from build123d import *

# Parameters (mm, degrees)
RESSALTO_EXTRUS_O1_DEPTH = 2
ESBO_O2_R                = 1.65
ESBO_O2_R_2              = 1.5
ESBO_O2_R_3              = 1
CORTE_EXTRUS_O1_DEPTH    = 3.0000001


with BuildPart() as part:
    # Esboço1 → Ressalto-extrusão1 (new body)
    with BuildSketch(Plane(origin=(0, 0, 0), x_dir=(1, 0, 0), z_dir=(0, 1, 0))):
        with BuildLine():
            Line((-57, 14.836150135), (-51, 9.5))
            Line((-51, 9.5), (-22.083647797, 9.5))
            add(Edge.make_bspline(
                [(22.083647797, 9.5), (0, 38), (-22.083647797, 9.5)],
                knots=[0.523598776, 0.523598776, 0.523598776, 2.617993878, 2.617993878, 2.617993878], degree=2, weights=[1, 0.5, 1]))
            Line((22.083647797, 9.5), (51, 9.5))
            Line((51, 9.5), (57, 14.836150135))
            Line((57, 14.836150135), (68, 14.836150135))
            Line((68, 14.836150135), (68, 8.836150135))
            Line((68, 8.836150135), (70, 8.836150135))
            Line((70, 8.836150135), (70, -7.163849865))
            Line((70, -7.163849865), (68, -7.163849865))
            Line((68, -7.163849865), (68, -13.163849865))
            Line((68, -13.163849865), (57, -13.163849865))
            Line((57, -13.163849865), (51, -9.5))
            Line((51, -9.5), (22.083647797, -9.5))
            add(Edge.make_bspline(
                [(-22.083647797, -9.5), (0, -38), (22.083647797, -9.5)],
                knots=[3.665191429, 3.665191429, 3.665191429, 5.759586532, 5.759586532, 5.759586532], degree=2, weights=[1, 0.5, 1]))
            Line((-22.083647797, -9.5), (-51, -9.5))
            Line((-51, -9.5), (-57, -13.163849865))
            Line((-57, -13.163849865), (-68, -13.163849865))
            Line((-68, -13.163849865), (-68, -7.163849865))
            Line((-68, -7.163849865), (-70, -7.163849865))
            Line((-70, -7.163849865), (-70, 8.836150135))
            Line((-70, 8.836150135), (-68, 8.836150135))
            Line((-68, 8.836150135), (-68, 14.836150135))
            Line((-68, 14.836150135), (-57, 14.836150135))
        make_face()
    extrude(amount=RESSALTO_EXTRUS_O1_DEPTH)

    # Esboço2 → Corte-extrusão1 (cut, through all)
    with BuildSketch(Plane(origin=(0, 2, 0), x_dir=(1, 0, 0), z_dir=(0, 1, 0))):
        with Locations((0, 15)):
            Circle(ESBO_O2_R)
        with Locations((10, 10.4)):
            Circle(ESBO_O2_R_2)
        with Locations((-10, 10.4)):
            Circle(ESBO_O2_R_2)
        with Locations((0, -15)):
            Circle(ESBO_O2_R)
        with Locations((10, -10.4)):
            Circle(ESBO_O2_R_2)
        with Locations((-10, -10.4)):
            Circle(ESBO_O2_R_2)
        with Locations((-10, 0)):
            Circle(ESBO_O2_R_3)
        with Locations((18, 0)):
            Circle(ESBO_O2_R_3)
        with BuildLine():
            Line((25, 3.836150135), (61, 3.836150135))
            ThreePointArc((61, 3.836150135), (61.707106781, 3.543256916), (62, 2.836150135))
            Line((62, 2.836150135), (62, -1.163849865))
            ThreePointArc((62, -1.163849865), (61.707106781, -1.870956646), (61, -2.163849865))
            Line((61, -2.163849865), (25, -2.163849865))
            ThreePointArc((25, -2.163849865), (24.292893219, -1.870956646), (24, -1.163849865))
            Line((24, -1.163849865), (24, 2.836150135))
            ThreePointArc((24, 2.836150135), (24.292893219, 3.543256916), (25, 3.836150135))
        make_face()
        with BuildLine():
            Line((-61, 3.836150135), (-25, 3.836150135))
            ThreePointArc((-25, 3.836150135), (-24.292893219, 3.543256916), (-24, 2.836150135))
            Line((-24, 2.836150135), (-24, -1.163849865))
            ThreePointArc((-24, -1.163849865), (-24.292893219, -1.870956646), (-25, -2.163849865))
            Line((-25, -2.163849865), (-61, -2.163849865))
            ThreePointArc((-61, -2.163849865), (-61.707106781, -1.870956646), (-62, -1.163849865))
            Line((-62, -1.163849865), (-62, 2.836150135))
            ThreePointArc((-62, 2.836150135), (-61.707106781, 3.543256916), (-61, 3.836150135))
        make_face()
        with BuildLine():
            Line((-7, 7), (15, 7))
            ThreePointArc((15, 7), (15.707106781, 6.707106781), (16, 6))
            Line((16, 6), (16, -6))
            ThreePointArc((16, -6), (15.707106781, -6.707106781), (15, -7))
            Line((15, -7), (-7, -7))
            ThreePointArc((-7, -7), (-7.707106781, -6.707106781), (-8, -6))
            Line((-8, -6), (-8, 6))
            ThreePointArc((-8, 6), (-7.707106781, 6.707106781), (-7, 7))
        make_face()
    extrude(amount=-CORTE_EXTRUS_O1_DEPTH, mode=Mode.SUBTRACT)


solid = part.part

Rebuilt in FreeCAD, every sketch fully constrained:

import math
import FreeCAD as App
import Part
import Sketcher

V = App.Vector
Q = App.Units.Quantity

doc = App.newDocument("Part")
body = doc.addObject("PartDesign::Body", "Body")

sketch1 = body.newObject("Sketcher::SketchObject", "Sketch")
sketch1.AttachmentSupport = (doc.getObject("XZ_Plane"), [""])
sketch1.MapMode = "FlatFace"
sketch1.addGeometry([
    Part.LineSegment(V(-51, -9.5, 0), V(-57, -14.83615, 0)),
    Part.LineSegment(V(-57, -14.83615, 0), V(-68, -14.83615, 0)),
    Part.LineSegment(V(-68, -14.83615, 0), V(-68, -8.83615, 0)),
    Part.LineSegment(V(-68, -8.83615, 0), V(-70, -8.83615, 0)),
    Part.LineSegment(V(-70, -8.83615, 0), V(-70, 7.16385, 0)),
    Part.LineSegment(V(-70, 7.16385, 0), V(-68, 7.16385, 0)),
    Part.LineSegment(V(-68, 7.16385, 0), V(-68, 13.16385, 0)),
    Part.LineSegment(V(-68, 13.16385, 0), V(-57, 13.16385, 0)),
    Part.LineSegment(V(-57, 13.16385, 0), V(-51, 9.5, 0)),
    Part.LineSegment(V(-51, 9.5, 0), V(-22.083648, 9.5, 0)),
    Part.BSplineCurve([V(-22.083648, 9.5, 0), V(0, 38, 0), V(22.083648, 9.5, 0)], [3, 3], [3.665191429, 5.759586532], False, 2, [1, 0.5, 1], False),
    Part.LineSegment(V(22.083648, 9.5, 0), V(51, 9.5, 0)),
    Part.LineSegment(V(51, 9.5, 0), V(57, 13.16385, 0)),
    Part.LineSegment(V(57, 13.16385, 0), V(68, 13.16385, 0)),
    Part.LineSegment(V(68, 13.16385, 0), V(68, 7.16385, 0)),
    Part.LineSegment(V(68, 7.16385, 0), V(70, 7.16385, 0)),
    Part.LineSegment(V(70, 7.16385, 0), V(70, -8.83615, 0)),
    Part.LineSegment(V(70, -8.83615, 0), V(68, -8.83615, 0)),
    Part.LineSegment(V(68, -8.83615, 0), V(68, -14.83615, 0)),
    Part.LineSegment(V(68, -14.83615, 0), V(57, -14.83615, 0)),
    Part.LineSegment(V(57, -14.83615, 0), V(51, -9.5, 0)),
    Part.LineSegment(V(51, -9.5, 0), V(22.083648, -9.5, 0)),
    Part.BSplineCurve([V(22.083648, -9.5, 0), V(0, -38, 0), V(-22.083648, -9.5, 0)], [3, 3], [0.523598776, 2.617993878], False, 2, [1, 0.5, 1], False),
    Part.LineSegment(V(-22.083648, -9.5, 0), V(-51, -9.5, 0)),
], False)
sketch1.addConstraint([
    Sketcher.Constraint("Block", 10),
    Sketcher.Constraint("Block", 22),
    Sketcher.Constraint("Coincident", 0, 2, 1, 1),
    Sketcher.Constraint("Coincident", 1, 2, 2, 1),
    Sketcher.Constraint("Coincident", 2, 2, 3, 1),
    Sketcher.Constraint("Coincident", 3, 2, 4, 1),
    Sketcher.Constraint("Coincident", 4, 2, 5, 1),
    Sketcher.Constraint("Coincident", 5, 2, 6, 1),
    Sketcher.Constraint("Coincident", 6, 2, 7, 1),
    Sketcher.Constraint("Coincident", 7, 2, 8, 1),
    Sketcher.Constraint("Coincident", 8, 2, 9, 1),
    Sketcher.Constraint("Coincident", 9, 2, 10, 1),
    Sketcher.Constraint("Coincident", 10, 2, 11, 1),
    Sketcher.Constraint("Coincident", 11, 2, 12, 1),
    Sketcher.Constraint("Coincident", 12, 2, 13, 1),
    Sketcher.Constraint("Coincident", 13, 2, 14, 1),
    Sketcher.Constraint("Coincident", 14, 2, 15, 1),
    Sketcher.Constraint("Coincident", 15, 2, 16, 1),
    Sketcher.Constraint("Coincident", 16, 2, 17, 1),
    Sketcher.Constraint("Coincident", 17, 2, 18, 1),
    Sketcher.Constraint("Coincident", 18, 2, 19, 1),
    Sketcher.Constraint("Coincident", 19, 2, 20, 1),
    Sketcher.Constraint("Coincident", 20, 2, 21, 1),
    Sketcher.Constraint("Coincident", 21, 2, 22, 1),
    Sketcher.Constraint("Coincident", 22, 2, 23, 1),
    Sketcher.Constraint("Coincident", 23, 2, 0, 1),
    Sketcher.Constraint("Horizontal", 1),
    Sketcher.Constraint("Vertical", 2),
    Sketcher.Constraint("Horizontal", 3),
    Sketcher.Constraint("Vertical", 4),
    Sketcher.Constraint("Horizontal", 5),
    Sketcher.Constraint("Vertical", 6),
    Sketcher.Constraint("Horizontal", 7),
    Sketcher.Constraint("Horizontal", 9),
    Sketcher.Constraint("Horizontal", 11),
    Sketcher.Constraint("Horizontal", 13),
    Sketcher.Constraint("Vertical", 14),
    Sketcher.Constraint("Horizontal", 15),
    Sketcher.Constraint("Vertical", 16),
    Sketcher.Constraint("Horizontal", 17),
    Sketcher.Constraint("Vertical", 18),
    Sketcher.Constraint("Horizontal", 19),
    Sketcher.Constraint("Horizontal", 21),
    Sketcher.Constraint("Horizontal", 23),
    Sketcher.Constraint("Symmetric", 7, 2, 12, 2, -2),
    Sketcher.Constraint("Symmetric", 5, 2, 14, 2, -2),
    Sketcher.Constraint("Symmetric", 3, 2, 16, 2, -2),
    Sketcher.Constraint("Symmetric", 1, 2, 18, 2, -2),
    Sketcher.Constraint("Vertical", 2, 2, 5, 2),
    Sketcher.Constraint("Vertical", 0, 2, 7, 2),
    Sketcher.Constraint("Vertical", 12, 2, 19, 2),
    Sketcher.Constraint("Vertical", 11, 2, 20, 2),
    Sketcher.Constraint("Vertical", 8, 2, 23, 2),
    Sketcher.Constraint("Equal", 9, 11),
    Sketcher.Constraint("Equal", 2, 6),
    Sketcher.Constraint("DistanceX", 1, 2, 1, 1, Q("11 mm")),
    Sketcher.Constraint("DistanceX", 3, 2, 3, 1, Q("2 mm")),
    Sketcher.Constraint("DistanceY", 2, 1, 2, 2, Q("6 mm")),
    Sketcher.Constraint("DistanceY", 4, 1, 4, 2, Q("16 mm")),
    Sketcher.Constraint("DistanceX", 0, 2, -1, 1, Q("57 mm")),
    Sketcher.Constraint("DistanceX", 8, 2, -1, 1, Q("51 mm")),
    Sketcher.Constraint("Distance", 0, Q("8.029601 mm")),
])
pad1 = body.newObject("PartDesign::Pad", "Pad")
pad1.Profile = sketch1
pad1.Length = 2
pad1.Reversed = True

sketch2 = body.newObject("Sketcher::SketchObject", "Sketch001")
sketch2.AttachmentSupport = (doc.getObject("XZ_Plane"), [""])
sketch2.MapMode = "FlatFace"
sketch2.AttachmentOffset = App.Placement(V(0, 0, -2), App.Rotation())
sketch2.addGeometry([
    Part.Circle(V(0, -15, 0), V(0, 0, 1), 1.6),
    Part.Circle(V(10, -10.4, 0), V(0, 0, 1), 1.5),
    Part.Circle(V(-10, -10.4, 0), V(0, 0, 1), 1.5),
    Part.Circle(V(0, 15, 0), V(0, 0, 1), 1.6),
    Part.Circle(V(10, 10.4, 0), V(0, 0, 1), 1.5),
    Part.Circle(V(-10, 10.4, 0), V(0, 0, 1), 1.5),
    Part.Circle(V(-10, 0, 0), V(0, 0, 1), 1),
    Part.Circle(V(18, 0, 0), V(0, 0, 1), 1),
    Part.LineSegment(V(61, -3.8, 0), V(25, -3.8, 0)),
    Part.ArcOfCircle(Part.Circle(V(25, -2.8, 0), V(0, 0, 1), 1), math.radians(-180), math.radians(-90)),
    Part.LineSegment(V(24, -2.8, 0), V(24, 1.2, 0)),
    Part.ArcOfCircle(Part.Circle(V(25, 1.2, 0), V(0, 0, 1), 1), math.radians(90), math.radians(180)),
    Part.LineSegment(V(25, 2.2, 0), V(61, 2.2, 0)),
    Part.ArcOfCircle(Part.Circle(V(61, 1.2, 0), V(0, 0, 1), 1), math.radians(0), math.radians(90)),
    Part.LineSegment(V(62, 1.2, 0), V(62, -2.8, 0)),
    Part.ArcOfCircle(Part.Circle(V(61, -2.8, 0), V(0, 0, 1), 1), math.radians(-90), math.radians(0)),
    Part.LineSegment(V(-25, -3.8, 0), V(-61, -3.8, 0)),
    Part.ArcOfCircle(Part.Circle(V(-61, -2.8, 0), V(0, 0, 1), 1), math.radians(-180), math.radians(-90)),
    Part.LineSegment(V(-62, -2.8, 0), V(-62, 1.2, 0)),
    Part.ArcOfCircle(Part.Circle(V(-61, 1.2, 0), V(0, 0, 1), 1), math.radians(90), math.radians(180)),
    Part.LineSegment(V(-61, 2.2, 0), V(-25, 2.2, 0)),
    Part.ArcOfCircle(Part.Circle(V(-25, 1.2, 0), V(0, 0, 1), 1), math.radians(0), math.radians(90)),
    Part.LineSegment(V(-24, 1.2, 0), V(-24, -2.8, 0)),
    Part.ArcOfCircle(Part.Circle(V(-25, -2.8, 0), V(0, 0, 1), 1), math.radians(-90), math.radians(0)),
    Part.LineSegment(V(15, -7, 0), V(-7, -7, 0)),
    Part.ArcOfCircle(Part.Circle(V(-7, -6, 0), V(0, 0, 1), 1), math.radians(-180), math.radians(-90)),
    Part.LineSegment(V(-8, -6, 0), V(-8, 6, 0)),
    Part.ArcOfCircle(Part.Circle(V(-7, 6, 0), V(0, 0, 1), 1), math.radians(90), math.radians(180)),
    Part.LineSegment(V(-7, 7, 0), V(15, 7, 0)),
    Part.ArcOfCircle(Part.Circle(V(15, 6, 0), V(0, 0, 1), 1), math.radians(0), math.radians(90)),
    Part.LineSegment(V(16, 6, 0), V(16, -6, 0)),
    Part.ArcOfCircle(Part.Circle(V(15, -6, 0), V(0, 0, 1), 1), math.radians(-90), math.radians(0)),
], False)
sketch2.addConstraint([
    Sketcher.Constraint("Tangent", 8, 2, 9, 2),
    Sketcher.Constraint("Tangent", 9, 1, 10, 1),
    Sketcher.Constraint("Tangent", 10, 2, 11, 2),
    Sketcher.Constraint("Tangent", 11, 1, 12, 1),
    Sketcher.Constraint("Tangent", 12, 2, 13, 2),
    Sketcher.Constraint("Tangent", 13, 1, 14, 1),
    Sketcher.Constraint("Tangent", 14, 2, 15, 2),
    Sketcher.Constraint("Tangent", 15, 1, 8, 1),
    Sketcher.Constraint("Tangent", 16, 2, 17, 2),
    Sketcher.Constraint("Tangent", 17, 1, 18, 1),
    Sketcher.Constraint("Tangent", 18, 2, 19, 2),
    Sketcher.Constraint("Tangent", 19, 1, 20, 1),
    Sketcher.Constraint("Tangent", 20, 2, 21, 2),
    Sketcher.Constraint("Tangent", 21, 1, 22, 1),
    Sketcher.Constraint("Tangent", 22, 2, 23, 2),
    Sketcher.Constraint("Tangent", 23, 1, 16, 1),
    Sketcher.Constraint("Tangent", 24, 2, 25, 2),
    Sketcher.Constraint("Tangent", 25, 1, 26, 1),
    Sketcher.Constraint("Tangent", 26, 2, 27, 2),
    Sketcher.Constraint("Tangent", 27, 1, 28, 1),
    Sketcher.Constraint("Tangent", 28, 2, 29, 2),
    Sketcher.Constraint("Tangent", 29, 1, 30, 1),
    Sketcher.Constraint("Tangent", 30, 2, 31, 2),
    Sketcher.Constraint("Tangent", 31, 1, 24, 1),
    Sketcher.Constraint("Horizontal", 8),
    Sketcher.Constraint("Vertical", 10),
    Sketcher.Constraint("Horizontal", 12),
    Sketcher.Constraint("Vertical", 14),
    Sketcher.Constraint("Horizontal", 16),
    Sketcher.Constraint("Vertical", 18),
    Sketcher.Constraint("Horizontal", 20),
    Sketcher.Constraint("Vertical", 22),
    Sketcher.Constraint("Horizontal", 24),
    Sketcher.Constraint("Vertical", 26),
    Sketcher.Constraint("Horizontal", 28),
    Sketcher.Constraint("Vertical", 30),
    Sketcher.Constraint("Equal", 1, 2),
    Sketcher.Constraint("Equal", 0, 3),
    Sketcher.Constraint("Equal", 2, 4),
    Sketcher.Constraint("Equal", 4, 5),
    Sketcher.Constraint("Equal", 6, 7),
    Sketcher.Constraint("Equal", 7, 9),
    Sketcher.Constraint("Equal", 9, 11),
    Sketcher.Constraint("Equal", 11, 13),
    Sketcher.Constraint("Equal", 13, 15),
    Sketcher.Constraint("Equal", 15, 17),
    Sketcher.Constraint("Equal", 17, 19),
    Sketcher.Constraint("Equal", 19, 21),
    Sketcher.Constraint("Equal", 21, 23),
    Sketcher.Constraint("Equal", 23, 25),
    Sketcher.Constraint("Equal", 25, 27),
    Sketcher.Constraint("Equal", 27, 29),
    Sketcher.Constraint("Equal", 29, 31),
    Sketcher.Constraint("Symmetric", 0, 3, 3, 3, -1, 1),
    Sketcher.Constraint("Symmetric", 2, 3, 4, 3, -1, 1),
    Sketcher.Constraint("Symmetric", 1, 3, 5, 3, -1, 1),
    Sketcher.Constraint("Symmetric", 1, 3, 2, 3, -2),
    Sketcher.Constraint("Symmetric", 15, 3, 17, 3, -2),
    Sketcher.Constraint("Symmetric", 11, 3, 21, 3, -2),
    Sketcher.Constraint("PointOnObject", 0, 3, -2),
    Sketcher.Constraint("PointOnObject", 6, 3, -1),
    Sketcher.Constraint("PointOnObject", 7, 3, -1),
    Sketcher.Constraint("Vertical", 5, 3, 6, 3),
    Sketcher.Constraint("Diameter", 1, Q("3 mm")),
    Sketcher.Constraint("Diameter", 6, Q("2 mm")),
    Sketcher.Constraint("Diameter", 0, Q("3.3 mm")),
    Sketcher.Constraint("DistanceX", 8, 2, 8, 1, Q("36 mm")),
    Sketcher.Constraint("DistanceX", 24, 2, 24, 1, Q("22 mm")),
    Sketcher.Constraint("DistanceY", 10, 1, 10, 2, Q("4 mm")),
    Sketcher.Constraint("DistanceY", 26, 1, 26, 2, Q("12 mm")),
    Sketcher.Constraint("DistanceY", 0, 3, -1, 1, Q("15 mm")),
    Sketcher.Constraint("DistanceX", -1, 1, 1, 3, Q("10 mm")),
    Sketcher.Constraint("DistanceX", -1, 1, 7, 3, Q("18 mm")),
    Sketcher.Constraint("DistanceX", -1, 1, 9, 3, Q("25 mm")),
    Sketcher.Constraint("DistanceX", 25, 3, -1, 1, Q("7 mm")),
    Sketcher.Constraint("DistanceY", 25, 3, -1, 1, Q("6 mm")),
    Sketcher.Constraint("DistanceY", 1, 3, -1, 1, Q("10.4 mm")),
    Sketcher.Constraint("DistanceY", 9, 3, -1, 1, Q("2.83615 mm")),
])
pocket1 = body.newObject("PartDesign::Pocket", "Pocket")
pocket1.Profile = sketch2
pocket1.Type = "ThroughAll"
pocket1.Reversed = True

doc.recompute()
